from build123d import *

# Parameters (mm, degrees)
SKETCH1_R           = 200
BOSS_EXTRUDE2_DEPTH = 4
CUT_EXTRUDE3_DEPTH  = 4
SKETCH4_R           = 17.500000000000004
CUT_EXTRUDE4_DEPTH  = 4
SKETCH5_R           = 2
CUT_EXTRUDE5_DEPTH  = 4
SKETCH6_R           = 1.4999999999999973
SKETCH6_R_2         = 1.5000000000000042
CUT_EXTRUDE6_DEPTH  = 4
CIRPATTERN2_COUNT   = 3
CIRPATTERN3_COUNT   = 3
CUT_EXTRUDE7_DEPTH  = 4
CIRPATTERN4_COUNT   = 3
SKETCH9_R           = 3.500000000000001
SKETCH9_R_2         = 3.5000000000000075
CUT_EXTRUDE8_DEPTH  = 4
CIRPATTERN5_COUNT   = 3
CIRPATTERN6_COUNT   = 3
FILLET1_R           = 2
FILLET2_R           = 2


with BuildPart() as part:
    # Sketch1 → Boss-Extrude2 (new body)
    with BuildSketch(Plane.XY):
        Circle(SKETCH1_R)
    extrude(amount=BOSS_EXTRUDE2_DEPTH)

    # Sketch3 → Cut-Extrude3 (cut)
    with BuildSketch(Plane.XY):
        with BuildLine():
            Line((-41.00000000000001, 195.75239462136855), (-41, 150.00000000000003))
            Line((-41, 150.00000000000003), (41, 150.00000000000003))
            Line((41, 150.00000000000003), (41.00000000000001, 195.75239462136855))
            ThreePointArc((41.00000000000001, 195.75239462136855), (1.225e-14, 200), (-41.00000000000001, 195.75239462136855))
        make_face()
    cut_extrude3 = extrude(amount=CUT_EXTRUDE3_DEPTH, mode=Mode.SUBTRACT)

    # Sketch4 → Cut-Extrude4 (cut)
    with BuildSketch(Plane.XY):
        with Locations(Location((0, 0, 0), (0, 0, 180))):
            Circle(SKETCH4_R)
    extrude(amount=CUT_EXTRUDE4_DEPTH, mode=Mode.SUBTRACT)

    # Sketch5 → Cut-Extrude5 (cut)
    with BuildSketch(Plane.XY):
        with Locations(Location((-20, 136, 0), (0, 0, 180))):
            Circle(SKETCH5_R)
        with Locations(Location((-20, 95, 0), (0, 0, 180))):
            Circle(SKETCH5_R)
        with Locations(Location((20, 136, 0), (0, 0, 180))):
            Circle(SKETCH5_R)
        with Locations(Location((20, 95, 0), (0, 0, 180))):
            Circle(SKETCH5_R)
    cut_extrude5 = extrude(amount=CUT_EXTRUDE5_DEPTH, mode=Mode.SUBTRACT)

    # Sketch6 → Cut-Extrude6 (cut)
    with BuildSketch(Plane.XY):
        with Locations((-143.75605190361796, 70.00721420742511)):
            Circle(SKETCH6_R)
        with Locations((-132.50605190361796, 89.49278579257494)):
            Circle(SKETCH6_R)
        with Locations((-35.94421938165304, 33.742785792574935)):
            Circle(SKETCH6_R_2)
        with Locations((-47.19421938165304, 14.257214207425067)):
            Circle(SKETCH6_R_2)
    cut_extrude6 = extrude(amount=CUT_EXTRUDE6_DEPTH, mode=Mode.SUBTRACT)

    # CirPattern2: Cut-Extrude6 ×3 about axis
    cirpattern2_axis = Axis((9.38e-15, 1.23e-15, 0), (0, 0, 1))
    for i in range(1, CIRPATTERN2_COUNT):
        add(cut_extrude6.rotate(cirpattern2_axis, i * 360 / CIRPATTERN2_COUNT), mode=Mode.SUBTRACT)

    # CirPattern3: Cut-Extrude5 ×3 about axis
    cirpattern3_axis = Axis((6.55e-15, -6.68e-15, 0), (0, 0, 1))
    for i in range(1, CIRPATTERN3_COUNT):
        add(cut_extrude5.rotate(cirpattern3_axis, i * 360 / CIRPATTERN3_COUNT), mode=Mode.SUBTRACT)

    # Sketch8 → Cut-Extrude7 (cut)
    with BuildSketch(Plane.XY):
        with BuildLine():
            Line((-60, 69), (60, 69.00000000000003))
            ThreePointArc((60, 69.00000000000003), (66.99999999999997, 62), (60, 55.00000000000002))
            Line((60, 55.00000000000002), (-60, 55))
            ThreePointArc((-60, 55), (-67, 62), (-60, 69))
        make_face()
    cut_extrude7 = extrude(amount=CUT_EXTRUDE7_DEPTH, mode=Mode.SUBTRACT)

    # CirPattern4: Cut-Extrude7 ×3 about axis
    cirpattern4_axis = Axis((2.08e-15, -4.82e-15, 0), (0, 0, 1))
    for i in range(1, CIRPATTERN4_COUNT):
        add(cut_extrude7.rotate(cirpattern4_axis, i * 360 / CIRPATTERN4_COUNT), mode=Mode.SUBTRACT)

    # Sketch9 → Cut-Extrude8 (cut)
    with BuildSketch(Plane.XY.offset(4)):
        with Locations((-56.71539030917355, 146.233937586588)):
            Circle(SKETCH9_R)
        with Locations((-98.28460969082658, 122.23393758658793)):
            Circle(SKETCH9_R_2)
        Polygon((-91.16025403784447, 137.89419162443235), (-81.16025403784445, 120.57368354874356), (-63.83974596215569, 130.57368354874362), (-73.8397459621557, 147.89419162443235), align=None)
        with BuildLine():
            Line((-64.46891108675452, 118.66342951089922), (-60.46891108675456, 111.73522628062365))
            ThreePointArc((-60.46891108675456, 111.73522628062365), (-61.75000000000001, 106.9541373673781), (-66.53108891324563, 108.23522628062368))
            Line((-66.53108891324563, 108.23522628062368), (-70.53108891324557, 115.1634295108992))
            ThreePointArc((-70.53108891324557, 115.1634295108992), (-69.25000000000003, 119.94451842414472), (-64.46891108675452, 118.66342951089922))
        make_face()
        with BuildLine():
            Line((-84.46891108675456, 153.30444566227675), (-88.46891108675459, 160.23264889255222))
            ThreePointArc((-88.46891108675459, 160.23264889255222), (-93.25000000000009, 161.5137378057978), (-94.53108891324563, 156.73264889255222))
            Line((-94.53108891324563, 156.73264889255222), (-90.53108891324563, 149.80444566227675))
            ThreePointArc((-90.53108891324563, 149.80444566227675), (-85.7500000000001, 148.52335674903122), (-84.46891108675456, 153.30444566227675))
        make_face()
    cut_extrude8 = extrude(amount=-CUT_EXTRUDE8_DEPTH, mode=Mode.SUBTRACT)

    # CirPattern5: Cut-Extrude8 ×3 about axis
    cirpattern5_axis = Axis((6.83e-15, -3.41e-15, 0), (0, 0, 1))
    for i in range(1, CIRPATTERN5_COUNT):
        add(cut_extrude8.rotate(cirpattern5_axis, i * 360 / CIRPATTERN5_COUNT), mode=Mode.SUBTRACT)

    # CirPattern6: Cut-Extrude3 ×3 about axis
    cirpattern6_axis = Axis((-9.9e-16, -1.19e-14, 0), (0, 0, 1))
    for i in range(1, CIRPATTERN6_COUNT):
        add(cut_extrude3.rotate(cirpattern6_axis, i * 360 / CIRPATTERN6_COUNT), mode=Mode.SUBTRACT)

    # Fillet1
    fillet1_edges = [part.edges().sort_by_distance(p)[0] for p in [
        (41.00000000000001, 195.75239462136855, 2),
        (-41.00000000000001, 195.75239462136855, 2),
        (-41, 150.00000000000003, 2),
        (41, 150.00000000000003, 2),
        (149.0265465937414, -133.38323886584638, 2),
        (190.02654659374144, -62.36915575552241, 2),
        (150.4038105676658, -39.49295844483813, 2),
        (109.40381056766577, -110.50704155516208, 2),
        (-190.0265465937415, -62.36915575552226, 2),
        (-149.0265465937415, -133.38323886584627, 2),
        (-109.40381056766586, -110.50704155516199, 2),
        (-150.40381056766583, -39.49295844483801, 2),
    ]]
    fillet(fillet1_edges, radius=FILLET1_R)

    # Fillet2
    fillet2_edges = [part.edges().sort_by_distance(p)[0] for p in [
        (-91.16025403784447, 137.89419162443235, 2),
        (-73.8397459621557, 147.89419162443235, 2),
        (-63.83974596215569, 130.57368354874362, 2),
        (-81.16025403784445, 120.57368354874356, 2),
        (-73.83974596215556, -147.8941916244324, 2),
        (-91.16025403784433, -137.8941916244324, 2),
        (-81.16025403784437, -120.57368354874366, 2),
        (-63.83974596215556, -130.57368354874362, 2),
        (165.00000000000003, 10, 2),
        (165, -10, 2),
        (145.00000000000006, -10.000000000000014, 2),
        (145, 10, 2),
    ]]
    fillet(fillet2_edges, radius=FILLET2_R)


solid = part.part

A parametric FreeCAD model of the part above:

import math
import FreeCAD as App
import Part
import Sketcher
from FreeCAD import Vector
Q = App.Units.Quantity


def edges_at(feature, points):
    """Names of the edges that pass closest to the given points."""
    edges = feature.Shape.Edges
    near = lambda p: min(range(len(edges)), key=lambda i: edges[i].distToShape(Part.Vertex(*p))[0])
    return sorted({f"Edge{near(p) + 1}" for p in points})

doc = App.newDocument("Part")
params = doc.addObject("Spreadsheet::Sheet", "Params")
for row, (alias, value) in enumerate([
    ("sketch1_diameter", "400 mm"),
    ("pad1_length", "4 mm"),
    ("sketch2_radius", "200 mm"),
    ("sketch2_width", "82 mm"),
    ("pocket1_length", "4 mm"),
    ("sketch3_diameter", "35 mm"),
    ("pocket2_length", "4 mm"),
    ("sketch4_diameter", "4 mm"),
    ("pocket3_length", "4 mm"),
    ("sketch5_diameter", "3 mm"),
    ("pocket4_length", "4 mm"),
    ("sketch6_radius", "7 mm"),
    ("sketch6_width", "120 mm"),
    ("pocket5_length", "4 mm"),
    ("sketch7_diameter", "7 mm"),
    ("sketch7_length", "20 mm"),
    ("sketch7_length2", "8 mm"),
    ("pocket6_length", "4 mm"),
    ("fillet_radius", "2 mm"),
    ("fillet2_radius", "2 mm"),
], start=1):
    params.set(f"A{row}", alias)
    params.set(f"B{row}", "=" + value)
    params.setAlias(f"B{row}", alias)

body = doc.addObject("PartDesign::Body", "Body")

# Sketch on XY plane
sketch1 = doc.addObject("Sketcher::SketchObject", "Sketch")
body.addObject(sketch1)
sketch1.AttachmentSupport = (doc.XY_Plane, [""])
sketch1.MapMode = "FlatFace"
sketch1.addGeometry(Part.Circle(Vector(0, 0, 0), Vector(0, 0, 1), 200), False)
sketch1.addConstraint(Sketcher.Constraint("Coincident", 0, 3, -1, 1))
sketch1.addConstraint(Sketcher.Constraint("Diameter", 0, Q("400 mm")))
sketch1.setExpression("Constraints[1]", "Params.sketch1_diameter")
pad1 = doc.addObject("PartDesign::Pad", "Pad")
body.addObject(pad1)
pad1.Profile = sketch1
pad1.setExpression("Length", "Params.pad1_length")

# Sketch on XY plane
sketch2 = doc.addObject("Sketcher::SketchObject", "Sketch001")
body.addObject(sketch2)
sketch2.AttachmentSupport = (doc.XY_Plane, [""])
sketch2.MapMode = "FlatFace"
sketch2.addGeometry(Part.LineSegment(Vector(-41, 196, 0), Vector(-41, 150, 0)), False)
sketch2.addGeometry(Part.LineSegment(Vector(-41, 150, 0), Vector(41, 150, 0)), False)
sketch2.addGeometry(Part.LineSegment(Vector(41, 150, 0), Vector(41, 196, 0)), False)
sketch2.addGeometry(Part.ArcOfCircle(Part.Circle(Vector(0, 0, 0), Vector(0, 0, 1), 200), math.radians(78), math.radians(102)), False)
sketch2.addConstraint(Sketcher.Constraint("Coincident", 0, 2, 1, 1))
sketch2.addConstraint(Sketcher.Constraint("Coincident", 1, 2, 2, 1))
sketch2.addConstraint(Sketcher.Constraint("Coincident", 2, 2, 3, 1))
sketch2.addConstraint(Sketcher.Constraint("Coincident", 3, 2, 0, 1))
sketch2.addConstraint(Sketcher.Constraint("Vertical", 0))
sketch2.addConstraint(Sketcher.Constraint("Horizontal", 1))
sketch2.addConstraint(Sketcher.Constraint("Vertical", 2))
sketch2.addConstraint(Sketcher.Constraint("Coincident", 3, 3, -1, 1))
sketch2.addConstraint(Sketcher.Constraint("Horizontal", 2, 2, 3, 2))
sketch2.addConstraint(Sketcher.Constraint("Radius", 3, Q("200 mm")))
sketch2.addConstraint(Sketcher.Constraint("DistanceX", 1, 1, 1, 2, Q("82 mm")))
sketch2.addConstraint(Sketcher.Constraint("DistanceY", -1, 1, 0, 2, Q("150 mm")))
sketch2.setExpression("Constraints[9]", "Params.sketch2_radius")
sketch2.setExpression("Constraints[10]", "Params.sketch2_width")
pocket1 = doc.addObject("PartDesign::Pocket", "Pocket")
body.addObject(pocket1)
pocket1.Profile = sketch2
pocket1.setExpression("Length", "Params.pocket1_length")
pocket1.Reversed = True

# Sketch on XY plane
sketch3 = doc.addObject("Sketcher::SketchObject", "Sketch002")
body.addObject(sketch3)
sketch3.AttachmentSupport = (doc.XY_Plane, [""])
sketch3.MapMode = "FlatFace"
sketch3.addGeometry(Part.Circle(Vector(0, 0, 0), Vector(0, 0, 1), 18), False)
sketch3.addConstraint(Sketcher.Constraint("Coincident", 0, 3, -1, 1))
sketch3.addConstraint(Sketcher.Constraint("Diameter", 0, Q("35 mm")))
sketch3.setExpression("Constraints[1]", "Params.sketch3_diameter")
pocket2 = doc.addObject("PartDesign::Pocket", "Pocket001")
body.addObject(pocket2)
pocket2.Profile = sketch3
pocket2.setExpression("Length", "Params.pocket2_length")
pocket2.Reversed = True

# Sketch on XY plane
sketch4 = doc.addObject("Sketcher::SketchObject", "Sketch003")
body.addObject(sketch4)
sketch4.AttachmentSupport = (doc.XY_Plane, [""])
sketch4.MapMode = "FlatFace"
sketch4.addGeometry(Part.Circle(Vector(-20, 136, 0), Vector(0, 0, 1), 2), False)
sketch4.addGeometry(Part.Circle(Vector(-20, 95, 0), Vector(0, 0, 1), 2), False)
sketch4.addGeometry(Part.Circle(Vector(20, 136, 0), Vector(0, 0, 1), 2), False)
sketch4.addGeometry(Part.Circle(Vector(20, 95, 0), Vector(0, 0, 1), 2), False)
sketch4.addConstraint(Sketcher.Constraint("Equal", 0, 1))
sketch4.addConstraint(Sketcher.Constraint("Equal", 1, 2))
sketch4.addConstraint(Sketcher.Constraint("Equal", 2, 3))
sketch4.addConstraint(Sketcher.Constraint("Symmetric", 0, 3, 2, 3, -2))
sketch4.addConstraint(Sketcher.Constraint("Symmetric", 1, 3, 3, 3, -2))
sketch4.addConstraint(Sketcher.Constraint("Vertical", 0, 3, 1, 3))
sketch4.addConstraint(Sketcher.Constraint("Diameter", 0, Q("4 mm")))
sketch4.addConstraint(Sketcher.Constraint("DistanceX", 0, 3, -1, 1, Q("20 mm")))
sketch4.addConstraint(Sketcher.Constraint("DistanceY", -1, 1, 0, 3, Q("136 mm")))
sketch4.addConstraint(Sketcher.Constraint("DistanceY", -1, 1, 1, 3, Q("95 mm")))
sketch4.setExpression("Constraints[6]", "Params.sketch4_diameter")
pocket3 = doc.addObject("PartDesign::Pocket", "Pocket002")
body.addObject(pocket3)
pocket3.Profile = sketch4
pocket3.setExpression("Length", "Params.pocket3_length")
pocket3.Reversed = True

# Sketch on XY plane
sketch5 = doc.addObject("Sketcher::SketchObject", "Sketch004")
body.addObject(sketch5)
sketch5.AttachmentSupport = (doc.XY_Plane, [""])
sketch5.MapMode = "FlatFace"
sketch5.addGeometry(Part.Circle(Vector(-143.8, 70, 0), Vector(0, 0, 1), 1.5), False)
sketch5.addGeometry(Part.Circle(Vector(-132.5, 89.5, 0), Vector(0, 0, 1), 1.5), False)
sketch5.addGeometry(Part.Circle(Vector(-35.9, 33.7, 0), Vector(0, 0, 1), 1.5), False)
sketch5.addGeometry(Part.Circle(Vector(-47.2, 14.3, 0), Vector(0, 0, 1), 1.5), False)
sketch5.addConstraint(Sketcher.Constraint("Equal", 0, 1))
sketch5.addConstraint(Sketcher.Constraint("Equal", 1, 2))
sketch5.addConstraint(Sketcher.Constraint("Equal", 2, 3))
sketch5.addConstraint(Sketcher.Constraint("Diameter", 0, Q("3 mm")))
sketch5.addConstraint(Sketcher.Constraint("DistanceX", 0, 3, 1, 3, Q("11.25 mm")))
sketch5.addConstraint(Sketcher.Constraint("DistanceY", 2, 3, 1, 3, Q("55.75 mm")))
sketch5.addConstraint(Sketcher.Constraint("DistanceX", 3, 3, 2, 3, Q("11.25 mm")))
sketch5.addConstraint(Sketcher.Constraint("DistanceY", 3, 3, 0, 3, Q("55.75 mm")))
sketch5.addConstraint(Sketcher.Constraint("DistanceX", 0, 3, -1, 1, Q("143.756052 mm")))
sketch5.addConstraint(Sketcher.Constraint("DistanceX", 2, 3, -1, 1, Q("35.944219 mm")))
sketch5.addConstraint(Sketcher.Constraint("DistanceY", 0, 3, 1, 3, Q("19.485572 mm")))
sketch5.addConstraint(Sketcher.Constraint("DistanceY", -1, 1, 0, 3, Q("70.007214 mm")))
sketch5.setExpression("Constraints[3]", "Params.sketch5_diameter")
pocket4 = doc.addObject("PartDesign::Pocket", "Pocket003")
body.addObject(pocket4)
pocket4.Profile = sketch5
pocket4.setExpression("Length", "Params.pocket4_length")
pocket4.Reversed = True
doc.recompute()

polarpattern = doc.addObject("PartDesign::PolarPattern", "PolarPattern")
body.addObject(polarpattern)
polarpattern.Originals = [pocket4]
polarpattern.Axis = (doc.Z_Axis, [""])
polarpattern.Angle = 360
polarpattern.Occurrences = 3
body.Tip = polarpattern
doc.recompute()

polarpattern2 = doc.addObject("PartDesign::PolarPattern", "PolarPattern001")
body.addObject(polarpattern2)
polarpattern2.Originals = [pocket3]
polarpattern2.Axis = (doc.Z_Axis, [""])
polarpattern2.Angle = 360
polarpattern2.Occurrences = 3
body.Tip = polarpattern2

# Sketch on XY plane
sketch6 = doc.addObject("Sketcher::SketchObject", "Sketch005")
body.addObject(sketch6)
sketch6.AttachmentSupport = (doc.XY_Plane, [""])
sketch6.MapMode = "FlatFace"
sketch6.addGeometry(Part.LineSegment(Vector(60, 69, 0), Vector(-60, 69, 0)), False)
sketch6.addGeometry(Part.ArcOfCircle(Part.Circle(Vector(-60, 62, 0), Vector(0, 0, 1), 7), math.radians(90), math.radians(270)), False)
sketch6.addGeometry(Part.LineSegment(Vector(-60, 55, 0), Vector(60, 55, 0)), False)
sketch6.addGeometry(Part.ArcOfCircle(Part.Circle(Vector(60, 62, 0), Vector(0, 0, 1), 7), math.radians(-90), math.radians(90)), False)
sketch6.addConstraint(Sketcher.Constraint("Tangent", 0, 2, 1, 1))
sketch6.addConstraint(Sketcher.Constraint("Tangent", 1, 2, 2, 1))
sketch6.addConstraint(Sketcher.Constraint("Tangent", 2, 2, 3, 1))
sketch6.addConstraint(Sketcher.Constraint("Tangent", 3, 2, 0, 1))
sketch6.addConstraint(Sketcher.Constraint("Horizontal", 0))
sketch6.addConstraint(Sketcher.Constraint("Horizontal", 2))
sketch6.addConstraint(Sketcher.Constraint("Radius", 1, Q("7 mm")))
sketch6.addConstraint(Sketcher.Constraint("DistanceX", 0, 2, 0, 1, Q("120 mm")))
sketch6.addConstraint(Sketcher.Constraint("DistanceX", 1, 3, -1, 1, Q("60 mm")))
sketch6.addConstraint(Sketcher.Constraint("DistanceY", -1, 1, 1, 3, Q("62 mm")))
sketch6.setExpression("Constraints[6]", "Params.sketch6_radius")
sketch6.setExpression("Constraints[7]", "Params.sketch6_width")
pocket5 = doc.addObject("PartDesign::Pocket", "Pocket004")
body.addObject(pocket5)
pocket5.Profile = sketch6
pocket5.setExpression("Length", "Params.pocket5_length")
pocket5.Reversed = True
doc.recompute()

polarpattern3 = doc.addObject("PartDesign::PolarPattern", "PolarPattern002")
body.addObject(polarpattern3)
polarpattern3.Originals = [pocket5]
polarpattern3.Axis = (doc.Z_Axis, [""])
polarpattern3.Angle = 360
polarpattern3.Occurrences = 3
body.Tip = polarpattern3

# Sketch on XY plane
sketch7 = doc.addObject("Sketcher::SketchObject", "Sketch006")
body.addObject(sketch7)
sketch7.AttachmentSupport = (doc.XY_Plane, [""])
sketch7.MapMode = "FlatFace"
sketch7.AttachmentOffset = App.Placement(Vector(0, 0, 4), App.Rotation())
sketch7.addGeometry(Part.Circle(Vector(-56.7, 146.2, 0), Vector(0, 0, 1), 3.5), False)
sketch7.addGeometry(Part.Circle(Vector(-98.3, 122.2, 0), Vector(0, 0, 1), 3.5), False)
sketch7.addGeometry(Part.LineSegment(Vector(-91.2, 137.9, 0), Vector(-81.2, 120.6, 0)), False)
sketch7.addGeometry(Part.LineSegment(Vector(-81.2, 120.6, 0), Vector(-63.8, 130.6, 0)), False)
sketch7.addGeometry(Part.LineSegment(Vector(-63.8, 130.6, 0), Vector(-73.8, 147.9, 0)), False)
sketch7.addGeometry(Part.LineSegment(Vector(-73.8, 147.9, 0), Vector(-91.2, 137.9, 0)), False)
sketch7.addGeometry(Part.LineSegment(Vector(-60.5, 111.7, 0), Vector(-64.5, 118.7, 0)), False)
sketch7.addGeometry(Part.ArcOfCircle(Part.Circle(Vector(-67.5, 116.9, 0), Vector(0, 0, 1), 3.5), math.radians(30), math.radians(210)), False)
sketch7.addGeometry(Part.LineSegment(Vector(-70.5, 115.2, 0), Vector(-66.5, 108.2, 0)), False)
sketch7.addGeometry(Part.ArcOfCircle(Part.Circle(Vector(-63.5, 110, 0), Vector(0, 0, 1), 3.5), math.radians(-150), math.radians(30)), False)
sketch7.addGeometry(Part.LineSegment(Vector(-84.5, 153.3, 0), Vector(-88.5, 160.2, 0)), False)
sketch7.addGeometry(Part.ArcOfCircle(Part.Circle(Vector(-91.5, 158.5, 0), Vector(0, 0, 1), 3.5), math.radians(30), math.radians(210)), False)
sketch7.addGeometry(Part.LineSegment(Vector(-94.5, 156.7, 0), Vector(-90.5, 149.8, 0)), False)
sketch7.addGeometry(Part.ArcOfCircle(Part.Circle(Vector(-87.5, 151.6, 0), Vector(0, 0, 1), 3.5), math.radians(-150), math.radians(30)), False)
sketch7.addConstraint(Sketcher.Constraint("Coincident", 2, 2, 3, 1))
sketch7.addConstraint(Sketcher.Constraint("Coincident", 3, 2, 4, 1))
sketch7.addConstraint(Sketcher.Constraint("Coincident", 4, 2, 5, 1))
sketch7.addConstraint(Sketcher.Constraint("Coincident", 5, 2, 2, 1))
sketch7.addConstraint(Sketcher.Constraint("Tangent", 6, 2, 7, 1))
sketch7.addConstraint(Sketcher.Constraint("Tangent", 7, 2, 8, 1))
sketch7.addConstraint(Sketcher.Constraint("Tangent", 8, 2, 9, 1))
sketch7.addConstraint(Sketcher.Constraint("Tangent", 9, 2, 6, 1))
sketch7.addConstraint(Sketcher.Constraint("Tangent", 10, 2, 11, 1))
sketch7.addConstraint(Sketcher.Constraint("Tangent", 11, 2, 12, 1))
sketch7.addConstraint(Sketcher.Constraint("Tangent", 12, 2, 13, 1))
sketch7.addConstraint(Sketcher.Constraint("Tangent", 13, 2, 10, 1))
sketch7.addConstraint(Sketcher.Constraint("Equal", 0, 1))
sketch7.addConstraint(Sketcher.Constraint("Equal", 1, 7))
sketch7.addConstraint(Sketcher.Constraint("Equal", 7, 9))
sketch7.addConstraint(Sketcher.Constraint("Equal", 9, 11))
sketch7.addConstraint(Sketcher.Constraint("Equal", 11, 13))
sketch7.addConstraint(Sketcher.Constraint("Perpendicular", 2, 3))
sketch7.addConstraint(Sketcher.Constraint("Perpendicular", 3, 4))
sketch7.addConstraint(Sketcher.Constraint("Perpendicular", 4, 5))
sketch7.addConstraint(Sketcher.Constraint("Perpendicular", 5, 6))
sketch7.addConstraint(Sketcher.Constraint("Parallel", 8, 10))
sketch7.addConstraint(Sketcher.Constraint("Equal", 2, 3))
sketch7.addConstraint(Sketcher.Constraint("Equal", 8, 10))
sketch7.addConstraint(Sketcher.Constraint("Diameter", 0, Q("7 mm")))
sketch7.addConstraint(Sketcher.Constraint("Angle", 2, Q("-60 deg")))
sketch7.addConstraint(Sketcher.Constraint("Distance", 2, Q("20 mm")))
sketch7.addConstraint(Sketcher.Constraint("Distance", 6, Q("8 mm")))
sketch7.addConstraint(Sketcher.Constraint("DistanceY", 1, 3, 0, 3, Q("24 mm")))
sketch7.addConstraint(Sketcher.Constraint("DistanceX", 11, 3, 7, 3, Q("24 mm")))
sketch7.addConstraint(Sketcher.Constraint("DistanceX", 7, 3, -1, 1, Q("67.5 mm")))
sketch7.addConstraint(Sketcher.Constraint("DistanceX", 0, 3, -1, 1, Q("56.71539 mm")))
sketch7.addConstraint(Sketcher.Constraint("DistanceX", 1, 3, -1, 1, Q("98.28461 mm")))
sketch7.addConstraint(Sketcher.Constraint("DistanceY", -1, 1, 7, 3, Q("116.91343 mm")))
sketch7.addConstraint(Sketcher.Constraint("DistanceY", -1, 1, 11, 3, Q("158.482649 mm")))
sketch7.addConstraint(Sketcher.Constraint("DistanceY", -1, 1, 4, 2, Q("147.894192 mm")))
sketch7.addConstraint(Sketcher.Constraint("DistanceY", 7, 3, 1, 3, Q("5.320508 mm")))
sketch7.addConstraint(Sketcher.Constraint("DistanceX", 2, 2, -1, 1, Q("81.160254 mm")))
sketch7.setExpression("Constraints[24]", "Params.sketch7_diameter")
sketch7.setExpression("Constraints[26]", "Params.sketch7_length")
sketch7.setExpression("Constraints[27]", "Params.sketch7_length2")
pocket6 = doc.addObject("PartDesign::Pocket", "Pocket005")
body.addObject(pocket6)
pocket6.Profile = sketch7
pocket6.setExpression("Length", "Params.pocket6_length")
doc.recompute()

polarpattern4 = doc.addObject("PartDesign::PolarPattern", "PolarPattern003")
body.addObject(polarpattern4)
polarpattern4.Originals = [pocket6]
polarpattern4.Axis = (doc.Z_Axis, [""])
polarpattern4.Angle = 360
polarpattern4.Occurrences = 3
body.Tip = polarpattern4
doc.recompute()

polarpattern5 = doc.addObject("PartDesign::PolarPattern", "PolarPattern004")
body.addObject(polarpattern5)
polarpattern5.Originals = [pocket1]
polarpattern5.Axis = (doc.Z_Axis, [""])
polarpattern5.Angle = 360
polarpattern5.Occurrences = 3
body.Tip = polarpattern5
doc.recompute()

fillet = doc.addObject("PartDesign::Fillet", "Fillet")
body.addObject(fillet)
fillet.Base = (polarpattern5, edges_at(polarpattern5, [
    (41, 195.752, 2),
    (-41, 195.752, 2),
    (-41, 150, 2),
    (41, 150, 2),
    (149.027, -133.383, 2),
    (190.027, -62.369, 2),
    (150.404, -39.493, 2),
    (109.404, -110.507, 2),
    (-190.027, -62.369, 2),
    (-149.027, -133.383, 2),
    (-109.404, -110.507, 2),
    (-150.404, -39.493, 2),
]))
fillet.setExpression("Radius", "Params.fillet_radius")
doc.recompute()

fillet2 = doc.addObject("PartDesign::Fillet", "Fillet001")
body.addObject(fillet2)
fillet2.Base = (fillet, edges_at(fillet, [
    (-91.16, 137.894, 2),
    (-73.84, 147.894, 2),
    (-63.84, 130.574, 2),
    (-81.16, 120.574, 2),
    (-73.84, -147.894, 2),
    (-91.16, -137.894, 2),
    (-81.16, -120.574, 2),
    (-63.84, -130.574, 2),
    (165, 10, 2),
    (165, -10, 2),
    (145, -10, 2),
    (145, 10, 2),
]))
fillet2.setExpression("Radius", "Params.fillet2_radius")

doc.recompute()
